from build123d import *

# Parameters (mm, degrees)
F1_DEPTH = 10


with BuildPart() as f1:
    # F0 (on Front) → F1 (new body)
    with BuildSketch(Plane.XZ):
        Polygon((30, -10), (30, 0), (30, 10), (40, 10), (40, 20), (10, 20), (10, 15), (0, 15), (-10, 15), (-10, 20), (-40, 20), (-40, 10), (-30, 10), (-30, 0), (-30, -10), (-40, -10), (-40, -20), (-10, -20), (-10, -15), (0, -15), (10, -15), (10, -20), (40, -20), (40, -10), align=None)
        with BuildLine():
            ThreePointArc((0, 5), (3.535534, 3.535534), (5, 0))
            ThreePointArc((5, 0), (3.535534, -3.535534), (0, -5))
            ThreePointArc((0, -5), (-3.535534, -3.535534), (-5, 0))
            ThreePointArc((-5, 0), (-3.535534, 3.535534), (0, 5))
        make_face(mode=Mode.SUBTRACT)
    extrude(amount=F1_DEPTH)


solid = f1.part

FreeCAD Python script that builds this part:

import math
import FreeCAD as App
import Part
import Sketcher
from FreeCAD import Vector
Q = App.Units.Quantity

doc = App.newDocument("Part")
body = doc.addObject("PartDesign::Body", "Body")

# Sketch on XZ plane
sketch1 = body.newObject("Sketcher::SketchObject", "Sketch")
sketch1.AttachmentSupport = (doc.getObject("XZ_Plane"), [""])
sketch1.MapMode = "FlatFace"
sketch1.addGeometry([
    Part.LineSegment(Vector(30, -10, 0), Vector(30, 10, 0)),  # 0
    Part.LineSegment(Vector(30, 10, 0), Vector(40, 10, 0)),  # 1
    Part.LineSegment(Vector(40, 10, 0), Vector(40, 20, 0)),  # 2
    Part.LineSegment(Vector(40, 20, 0), Vector(10, 20, 0)),  # 3
    Part.LineSegment(Vector(10, 20, 0), Vector(10, 15, 0)),  # 4
    Part.LineSegment(Vector(10, 15, 0), Vector(-10, 15, 0)),  # 5
    Part.LineSegment(Vector(-10, 15, 0), Vector(-10, 20, 0)),  # 6
    Part.LineSegment(Vector(-10, 20, 0), Vector(-40, 20, 0)),  # 7
    Part.LineSegment(Vector(-40, 20, 0), Vector(-40, 10, 0)),  # 8
    Part.LineSegment(Vector(-40, 10, 0), Vector(-30, 10, 0)),  # 9
    Part.LineSegment(Vector(-30, 10, 0), Vector(-30, -10, 0)),  # 10
    Part.LineSegment(Vector(-30, -10, 0), Vector(-40, -10, 0)),  # 11
    Part.LineSegment(Vector(-40, -10, 0), Vector(-40, -20, 0)),  # 12
    Part.LineSegment(Vector(-40, -20, 0), Vector(-10, -20, 0)),  # 13
    Part.LineSegment(Vector(-10, -20, 0), Vector(-10, -15, 0)),  # 14
    Part.LineSegment(Vector(-10, -15, 0), Vector(10, -15, 0)),  # 15
    Part.LineSegment(Vector(10, -15, 0), Vector(10, -20, 0)),  # 16
    Part.LineSegment(Vector(10, -20, 0), Vector(40, -20, 0)),  # 17
    Part.LineSegment(Vector(40, -20, 0), Vector(40, -10, 0)),  # 18
    Part.LineSegment(Vector(40, -10, 0), Vector(30, -10, 0)),  # 19
    Part.ArcOfCircle(Part.Circle(Vector(0, 0, 0), Vector(0, 0, 1), 5), math.radians(89.999996), math.radians(180.000004)),  # 20
    Part.ArcOfCircle(Part.Circle(Vector(0, 0, 0), Vector(0, 0, 1), 5), math.radians(-0.000004), math.radians(90.000004)),  # 21
    Part.ArcOfCircle(Part.Circle(Vector(0, 0, 0), Vector(0, 0, 1), 5), math.radians(-90.000004), math.radians(0.000004)),  # 22
    Part.ArcOfCircle(Part.Circle(Vector(0, 0, 0), Vector(0, 0, 1), 5), math.radians(179.999996), math.radians(270.000004)),  # 23
], False)
sketch1.addConstraint([
    Sketcher.Constraint("Coincident", 0, 2, 1, 1),
    Sketcher.Constraint("Coincident", 1, 2, 2, 1),
    Sketcher.Constraint("Coincident", 2, 2, 3, 1),
    Sketcher.Constraint("Coincident", 3, 2, 4, 1),
    Sketcher.Constraint("Coincident", 4, 2, 5, 1),
    Sketcher.Constraint("Coincident", 5, 2, 6, 1),
    Sketcher.Constraint("Coincident", 6, 2, 7, 1),
    Sketcher.Constraint("Coincident", 7, 2, 8, 1),
    Sketcher.Constraint("Coincident", 8, 2, 9, 1),
    Sketcher.Constraint("Coincident", 9, 2, 10, 1),
    Sketcher.Constraint("Coincident", 10, 2, 11, 1),
    Sketcher.Constraint("Coincident", 11, 2, 12, 1),
    Sketcher.Constraint("Coincident", 12, 2, 13, 1),
    Sketcher.Constraint("Coincident", 13, 2, 14, 1),
    Sketcher.Constraint("Coincident", 14, 2, 15, 1),
    Sketcher.Constraint("Coincident", 15, 2, 16, 1),
    Sketcher.Constraint("Coincident", 16, 2, 17, 1),
    Sketcher.Constraint("Coincident", 17, 2, 18, 1),
    Sketcher.Constraint("Coincident", 18, 2, 19, 1),
    Sketcher.Constraint("Coincident", 19, 2, 0, 1),
    Sketcher.Constraint("Tangent", 20, 1, 21, 2),
    Sketcher.Constraint("Tangent", 21, 1, 22, 2),
    Sketcher.Constraint("Tangent", 22, 1, 23, 2),
    Sketcher.Constraint("Tangent", 23, 1, 20, 2),
    Sketcher.Constraint("Vertical", 0),
    Sketcher.Constraint("Horizontal", 1),
    Sketcher.Constraint("Vertical", 2),
    Sketcher.Constraint("Horizontal", 3),
    Sketcher.Constraint("Vertical", 4),
    Sketcher.Constraint("Horizontal", 5),
    Sketcher.Constraint("Vertical", 6),
    Sketcher.Constraint("Horizontal", 7),
    Sketcher.Constraint("Vertical", 8),
    Sketcher.Constraint("Horizontal", 9),
    Sketcher.Constraint("Vertical", 10),
    Sketcher.Constraint("Horizontal", 11),
    Sketcher.Constraint("Vertical", 12),
    Sketcher.Constraint("Horizontal", 13),
    Sketcher.Constraint("Vertical", 14),
    Sketcher.Constraint("Horizontal", 15),
    Sketcher.Constraint("Vertical", 16),
    Sketcher.Constraint("Horizontal", 17),
    Sketcher.Constraint("Vertical", 18),
    Sketcher.Constraint("Horizontal", 19),
    Sketcher.Constraint("Coincident", 20, 3, -1, 1),
    Sketcher.Constraint("Equal", 20, 21),
    Sketcher.Constraint("Symmetric", 0, 2, 10, 2, -1, 1),
    Sketcher.Constraint("Symmetric", 2, 2, 12, 2, -1, 1),
    Sketcher.Constraint("Symmetric", 4, 2, 14, 2, -1, 1),
    Sketcher.Constraint("Symmetric", 6, 2, 16, 2, -1, 1),
    Sketcher.Constraint("Symmetric", 8, 2, 18, 2, -1, 1),
    Sketcher.Constraint("Symmetric", 3, 2, 6, 2, -2),
    Sketcher.Constraint("Symmetric", 1, 2, 8, 2, -2),
    Sketcher.Constraint("PointOnObject", 20, 1, -2),
    Sketcher.Constraint("PointOnObject", 21, 1, -1),
    Sketcher.Constraint("PointOnObject", 22, 1, -2),
    Sketcher.Constraint("PointOnObject", 23, 1, -1),
    Sketcher.Constraint("Equal", 15, 0),
    Sketcher.Constraint("Equal", 19, 2),
    Sketcher.Constraint("Radius", 20, Q("5 mm")),
    Sketcher.Constraint("DistanceX", 1, 1, 1, 2, Q("10 mm")),
    Sketcher.Constraint("DistanceX", 3, 2, 3, 1, Q("30 mm")),
    Sketcher.Constraint("DistanceX", 5, 2, 5, 1, Q("20 mm")),
    Sketcher.Constraint("DistanceY", 4, 2, 4, 1, Q("5 mm")),
])
pad1 = body.newObject("PartDesign::Pad", "Pad")
pad1.Profile = sketch1
pad1.Length = 10

doc.recompute()
